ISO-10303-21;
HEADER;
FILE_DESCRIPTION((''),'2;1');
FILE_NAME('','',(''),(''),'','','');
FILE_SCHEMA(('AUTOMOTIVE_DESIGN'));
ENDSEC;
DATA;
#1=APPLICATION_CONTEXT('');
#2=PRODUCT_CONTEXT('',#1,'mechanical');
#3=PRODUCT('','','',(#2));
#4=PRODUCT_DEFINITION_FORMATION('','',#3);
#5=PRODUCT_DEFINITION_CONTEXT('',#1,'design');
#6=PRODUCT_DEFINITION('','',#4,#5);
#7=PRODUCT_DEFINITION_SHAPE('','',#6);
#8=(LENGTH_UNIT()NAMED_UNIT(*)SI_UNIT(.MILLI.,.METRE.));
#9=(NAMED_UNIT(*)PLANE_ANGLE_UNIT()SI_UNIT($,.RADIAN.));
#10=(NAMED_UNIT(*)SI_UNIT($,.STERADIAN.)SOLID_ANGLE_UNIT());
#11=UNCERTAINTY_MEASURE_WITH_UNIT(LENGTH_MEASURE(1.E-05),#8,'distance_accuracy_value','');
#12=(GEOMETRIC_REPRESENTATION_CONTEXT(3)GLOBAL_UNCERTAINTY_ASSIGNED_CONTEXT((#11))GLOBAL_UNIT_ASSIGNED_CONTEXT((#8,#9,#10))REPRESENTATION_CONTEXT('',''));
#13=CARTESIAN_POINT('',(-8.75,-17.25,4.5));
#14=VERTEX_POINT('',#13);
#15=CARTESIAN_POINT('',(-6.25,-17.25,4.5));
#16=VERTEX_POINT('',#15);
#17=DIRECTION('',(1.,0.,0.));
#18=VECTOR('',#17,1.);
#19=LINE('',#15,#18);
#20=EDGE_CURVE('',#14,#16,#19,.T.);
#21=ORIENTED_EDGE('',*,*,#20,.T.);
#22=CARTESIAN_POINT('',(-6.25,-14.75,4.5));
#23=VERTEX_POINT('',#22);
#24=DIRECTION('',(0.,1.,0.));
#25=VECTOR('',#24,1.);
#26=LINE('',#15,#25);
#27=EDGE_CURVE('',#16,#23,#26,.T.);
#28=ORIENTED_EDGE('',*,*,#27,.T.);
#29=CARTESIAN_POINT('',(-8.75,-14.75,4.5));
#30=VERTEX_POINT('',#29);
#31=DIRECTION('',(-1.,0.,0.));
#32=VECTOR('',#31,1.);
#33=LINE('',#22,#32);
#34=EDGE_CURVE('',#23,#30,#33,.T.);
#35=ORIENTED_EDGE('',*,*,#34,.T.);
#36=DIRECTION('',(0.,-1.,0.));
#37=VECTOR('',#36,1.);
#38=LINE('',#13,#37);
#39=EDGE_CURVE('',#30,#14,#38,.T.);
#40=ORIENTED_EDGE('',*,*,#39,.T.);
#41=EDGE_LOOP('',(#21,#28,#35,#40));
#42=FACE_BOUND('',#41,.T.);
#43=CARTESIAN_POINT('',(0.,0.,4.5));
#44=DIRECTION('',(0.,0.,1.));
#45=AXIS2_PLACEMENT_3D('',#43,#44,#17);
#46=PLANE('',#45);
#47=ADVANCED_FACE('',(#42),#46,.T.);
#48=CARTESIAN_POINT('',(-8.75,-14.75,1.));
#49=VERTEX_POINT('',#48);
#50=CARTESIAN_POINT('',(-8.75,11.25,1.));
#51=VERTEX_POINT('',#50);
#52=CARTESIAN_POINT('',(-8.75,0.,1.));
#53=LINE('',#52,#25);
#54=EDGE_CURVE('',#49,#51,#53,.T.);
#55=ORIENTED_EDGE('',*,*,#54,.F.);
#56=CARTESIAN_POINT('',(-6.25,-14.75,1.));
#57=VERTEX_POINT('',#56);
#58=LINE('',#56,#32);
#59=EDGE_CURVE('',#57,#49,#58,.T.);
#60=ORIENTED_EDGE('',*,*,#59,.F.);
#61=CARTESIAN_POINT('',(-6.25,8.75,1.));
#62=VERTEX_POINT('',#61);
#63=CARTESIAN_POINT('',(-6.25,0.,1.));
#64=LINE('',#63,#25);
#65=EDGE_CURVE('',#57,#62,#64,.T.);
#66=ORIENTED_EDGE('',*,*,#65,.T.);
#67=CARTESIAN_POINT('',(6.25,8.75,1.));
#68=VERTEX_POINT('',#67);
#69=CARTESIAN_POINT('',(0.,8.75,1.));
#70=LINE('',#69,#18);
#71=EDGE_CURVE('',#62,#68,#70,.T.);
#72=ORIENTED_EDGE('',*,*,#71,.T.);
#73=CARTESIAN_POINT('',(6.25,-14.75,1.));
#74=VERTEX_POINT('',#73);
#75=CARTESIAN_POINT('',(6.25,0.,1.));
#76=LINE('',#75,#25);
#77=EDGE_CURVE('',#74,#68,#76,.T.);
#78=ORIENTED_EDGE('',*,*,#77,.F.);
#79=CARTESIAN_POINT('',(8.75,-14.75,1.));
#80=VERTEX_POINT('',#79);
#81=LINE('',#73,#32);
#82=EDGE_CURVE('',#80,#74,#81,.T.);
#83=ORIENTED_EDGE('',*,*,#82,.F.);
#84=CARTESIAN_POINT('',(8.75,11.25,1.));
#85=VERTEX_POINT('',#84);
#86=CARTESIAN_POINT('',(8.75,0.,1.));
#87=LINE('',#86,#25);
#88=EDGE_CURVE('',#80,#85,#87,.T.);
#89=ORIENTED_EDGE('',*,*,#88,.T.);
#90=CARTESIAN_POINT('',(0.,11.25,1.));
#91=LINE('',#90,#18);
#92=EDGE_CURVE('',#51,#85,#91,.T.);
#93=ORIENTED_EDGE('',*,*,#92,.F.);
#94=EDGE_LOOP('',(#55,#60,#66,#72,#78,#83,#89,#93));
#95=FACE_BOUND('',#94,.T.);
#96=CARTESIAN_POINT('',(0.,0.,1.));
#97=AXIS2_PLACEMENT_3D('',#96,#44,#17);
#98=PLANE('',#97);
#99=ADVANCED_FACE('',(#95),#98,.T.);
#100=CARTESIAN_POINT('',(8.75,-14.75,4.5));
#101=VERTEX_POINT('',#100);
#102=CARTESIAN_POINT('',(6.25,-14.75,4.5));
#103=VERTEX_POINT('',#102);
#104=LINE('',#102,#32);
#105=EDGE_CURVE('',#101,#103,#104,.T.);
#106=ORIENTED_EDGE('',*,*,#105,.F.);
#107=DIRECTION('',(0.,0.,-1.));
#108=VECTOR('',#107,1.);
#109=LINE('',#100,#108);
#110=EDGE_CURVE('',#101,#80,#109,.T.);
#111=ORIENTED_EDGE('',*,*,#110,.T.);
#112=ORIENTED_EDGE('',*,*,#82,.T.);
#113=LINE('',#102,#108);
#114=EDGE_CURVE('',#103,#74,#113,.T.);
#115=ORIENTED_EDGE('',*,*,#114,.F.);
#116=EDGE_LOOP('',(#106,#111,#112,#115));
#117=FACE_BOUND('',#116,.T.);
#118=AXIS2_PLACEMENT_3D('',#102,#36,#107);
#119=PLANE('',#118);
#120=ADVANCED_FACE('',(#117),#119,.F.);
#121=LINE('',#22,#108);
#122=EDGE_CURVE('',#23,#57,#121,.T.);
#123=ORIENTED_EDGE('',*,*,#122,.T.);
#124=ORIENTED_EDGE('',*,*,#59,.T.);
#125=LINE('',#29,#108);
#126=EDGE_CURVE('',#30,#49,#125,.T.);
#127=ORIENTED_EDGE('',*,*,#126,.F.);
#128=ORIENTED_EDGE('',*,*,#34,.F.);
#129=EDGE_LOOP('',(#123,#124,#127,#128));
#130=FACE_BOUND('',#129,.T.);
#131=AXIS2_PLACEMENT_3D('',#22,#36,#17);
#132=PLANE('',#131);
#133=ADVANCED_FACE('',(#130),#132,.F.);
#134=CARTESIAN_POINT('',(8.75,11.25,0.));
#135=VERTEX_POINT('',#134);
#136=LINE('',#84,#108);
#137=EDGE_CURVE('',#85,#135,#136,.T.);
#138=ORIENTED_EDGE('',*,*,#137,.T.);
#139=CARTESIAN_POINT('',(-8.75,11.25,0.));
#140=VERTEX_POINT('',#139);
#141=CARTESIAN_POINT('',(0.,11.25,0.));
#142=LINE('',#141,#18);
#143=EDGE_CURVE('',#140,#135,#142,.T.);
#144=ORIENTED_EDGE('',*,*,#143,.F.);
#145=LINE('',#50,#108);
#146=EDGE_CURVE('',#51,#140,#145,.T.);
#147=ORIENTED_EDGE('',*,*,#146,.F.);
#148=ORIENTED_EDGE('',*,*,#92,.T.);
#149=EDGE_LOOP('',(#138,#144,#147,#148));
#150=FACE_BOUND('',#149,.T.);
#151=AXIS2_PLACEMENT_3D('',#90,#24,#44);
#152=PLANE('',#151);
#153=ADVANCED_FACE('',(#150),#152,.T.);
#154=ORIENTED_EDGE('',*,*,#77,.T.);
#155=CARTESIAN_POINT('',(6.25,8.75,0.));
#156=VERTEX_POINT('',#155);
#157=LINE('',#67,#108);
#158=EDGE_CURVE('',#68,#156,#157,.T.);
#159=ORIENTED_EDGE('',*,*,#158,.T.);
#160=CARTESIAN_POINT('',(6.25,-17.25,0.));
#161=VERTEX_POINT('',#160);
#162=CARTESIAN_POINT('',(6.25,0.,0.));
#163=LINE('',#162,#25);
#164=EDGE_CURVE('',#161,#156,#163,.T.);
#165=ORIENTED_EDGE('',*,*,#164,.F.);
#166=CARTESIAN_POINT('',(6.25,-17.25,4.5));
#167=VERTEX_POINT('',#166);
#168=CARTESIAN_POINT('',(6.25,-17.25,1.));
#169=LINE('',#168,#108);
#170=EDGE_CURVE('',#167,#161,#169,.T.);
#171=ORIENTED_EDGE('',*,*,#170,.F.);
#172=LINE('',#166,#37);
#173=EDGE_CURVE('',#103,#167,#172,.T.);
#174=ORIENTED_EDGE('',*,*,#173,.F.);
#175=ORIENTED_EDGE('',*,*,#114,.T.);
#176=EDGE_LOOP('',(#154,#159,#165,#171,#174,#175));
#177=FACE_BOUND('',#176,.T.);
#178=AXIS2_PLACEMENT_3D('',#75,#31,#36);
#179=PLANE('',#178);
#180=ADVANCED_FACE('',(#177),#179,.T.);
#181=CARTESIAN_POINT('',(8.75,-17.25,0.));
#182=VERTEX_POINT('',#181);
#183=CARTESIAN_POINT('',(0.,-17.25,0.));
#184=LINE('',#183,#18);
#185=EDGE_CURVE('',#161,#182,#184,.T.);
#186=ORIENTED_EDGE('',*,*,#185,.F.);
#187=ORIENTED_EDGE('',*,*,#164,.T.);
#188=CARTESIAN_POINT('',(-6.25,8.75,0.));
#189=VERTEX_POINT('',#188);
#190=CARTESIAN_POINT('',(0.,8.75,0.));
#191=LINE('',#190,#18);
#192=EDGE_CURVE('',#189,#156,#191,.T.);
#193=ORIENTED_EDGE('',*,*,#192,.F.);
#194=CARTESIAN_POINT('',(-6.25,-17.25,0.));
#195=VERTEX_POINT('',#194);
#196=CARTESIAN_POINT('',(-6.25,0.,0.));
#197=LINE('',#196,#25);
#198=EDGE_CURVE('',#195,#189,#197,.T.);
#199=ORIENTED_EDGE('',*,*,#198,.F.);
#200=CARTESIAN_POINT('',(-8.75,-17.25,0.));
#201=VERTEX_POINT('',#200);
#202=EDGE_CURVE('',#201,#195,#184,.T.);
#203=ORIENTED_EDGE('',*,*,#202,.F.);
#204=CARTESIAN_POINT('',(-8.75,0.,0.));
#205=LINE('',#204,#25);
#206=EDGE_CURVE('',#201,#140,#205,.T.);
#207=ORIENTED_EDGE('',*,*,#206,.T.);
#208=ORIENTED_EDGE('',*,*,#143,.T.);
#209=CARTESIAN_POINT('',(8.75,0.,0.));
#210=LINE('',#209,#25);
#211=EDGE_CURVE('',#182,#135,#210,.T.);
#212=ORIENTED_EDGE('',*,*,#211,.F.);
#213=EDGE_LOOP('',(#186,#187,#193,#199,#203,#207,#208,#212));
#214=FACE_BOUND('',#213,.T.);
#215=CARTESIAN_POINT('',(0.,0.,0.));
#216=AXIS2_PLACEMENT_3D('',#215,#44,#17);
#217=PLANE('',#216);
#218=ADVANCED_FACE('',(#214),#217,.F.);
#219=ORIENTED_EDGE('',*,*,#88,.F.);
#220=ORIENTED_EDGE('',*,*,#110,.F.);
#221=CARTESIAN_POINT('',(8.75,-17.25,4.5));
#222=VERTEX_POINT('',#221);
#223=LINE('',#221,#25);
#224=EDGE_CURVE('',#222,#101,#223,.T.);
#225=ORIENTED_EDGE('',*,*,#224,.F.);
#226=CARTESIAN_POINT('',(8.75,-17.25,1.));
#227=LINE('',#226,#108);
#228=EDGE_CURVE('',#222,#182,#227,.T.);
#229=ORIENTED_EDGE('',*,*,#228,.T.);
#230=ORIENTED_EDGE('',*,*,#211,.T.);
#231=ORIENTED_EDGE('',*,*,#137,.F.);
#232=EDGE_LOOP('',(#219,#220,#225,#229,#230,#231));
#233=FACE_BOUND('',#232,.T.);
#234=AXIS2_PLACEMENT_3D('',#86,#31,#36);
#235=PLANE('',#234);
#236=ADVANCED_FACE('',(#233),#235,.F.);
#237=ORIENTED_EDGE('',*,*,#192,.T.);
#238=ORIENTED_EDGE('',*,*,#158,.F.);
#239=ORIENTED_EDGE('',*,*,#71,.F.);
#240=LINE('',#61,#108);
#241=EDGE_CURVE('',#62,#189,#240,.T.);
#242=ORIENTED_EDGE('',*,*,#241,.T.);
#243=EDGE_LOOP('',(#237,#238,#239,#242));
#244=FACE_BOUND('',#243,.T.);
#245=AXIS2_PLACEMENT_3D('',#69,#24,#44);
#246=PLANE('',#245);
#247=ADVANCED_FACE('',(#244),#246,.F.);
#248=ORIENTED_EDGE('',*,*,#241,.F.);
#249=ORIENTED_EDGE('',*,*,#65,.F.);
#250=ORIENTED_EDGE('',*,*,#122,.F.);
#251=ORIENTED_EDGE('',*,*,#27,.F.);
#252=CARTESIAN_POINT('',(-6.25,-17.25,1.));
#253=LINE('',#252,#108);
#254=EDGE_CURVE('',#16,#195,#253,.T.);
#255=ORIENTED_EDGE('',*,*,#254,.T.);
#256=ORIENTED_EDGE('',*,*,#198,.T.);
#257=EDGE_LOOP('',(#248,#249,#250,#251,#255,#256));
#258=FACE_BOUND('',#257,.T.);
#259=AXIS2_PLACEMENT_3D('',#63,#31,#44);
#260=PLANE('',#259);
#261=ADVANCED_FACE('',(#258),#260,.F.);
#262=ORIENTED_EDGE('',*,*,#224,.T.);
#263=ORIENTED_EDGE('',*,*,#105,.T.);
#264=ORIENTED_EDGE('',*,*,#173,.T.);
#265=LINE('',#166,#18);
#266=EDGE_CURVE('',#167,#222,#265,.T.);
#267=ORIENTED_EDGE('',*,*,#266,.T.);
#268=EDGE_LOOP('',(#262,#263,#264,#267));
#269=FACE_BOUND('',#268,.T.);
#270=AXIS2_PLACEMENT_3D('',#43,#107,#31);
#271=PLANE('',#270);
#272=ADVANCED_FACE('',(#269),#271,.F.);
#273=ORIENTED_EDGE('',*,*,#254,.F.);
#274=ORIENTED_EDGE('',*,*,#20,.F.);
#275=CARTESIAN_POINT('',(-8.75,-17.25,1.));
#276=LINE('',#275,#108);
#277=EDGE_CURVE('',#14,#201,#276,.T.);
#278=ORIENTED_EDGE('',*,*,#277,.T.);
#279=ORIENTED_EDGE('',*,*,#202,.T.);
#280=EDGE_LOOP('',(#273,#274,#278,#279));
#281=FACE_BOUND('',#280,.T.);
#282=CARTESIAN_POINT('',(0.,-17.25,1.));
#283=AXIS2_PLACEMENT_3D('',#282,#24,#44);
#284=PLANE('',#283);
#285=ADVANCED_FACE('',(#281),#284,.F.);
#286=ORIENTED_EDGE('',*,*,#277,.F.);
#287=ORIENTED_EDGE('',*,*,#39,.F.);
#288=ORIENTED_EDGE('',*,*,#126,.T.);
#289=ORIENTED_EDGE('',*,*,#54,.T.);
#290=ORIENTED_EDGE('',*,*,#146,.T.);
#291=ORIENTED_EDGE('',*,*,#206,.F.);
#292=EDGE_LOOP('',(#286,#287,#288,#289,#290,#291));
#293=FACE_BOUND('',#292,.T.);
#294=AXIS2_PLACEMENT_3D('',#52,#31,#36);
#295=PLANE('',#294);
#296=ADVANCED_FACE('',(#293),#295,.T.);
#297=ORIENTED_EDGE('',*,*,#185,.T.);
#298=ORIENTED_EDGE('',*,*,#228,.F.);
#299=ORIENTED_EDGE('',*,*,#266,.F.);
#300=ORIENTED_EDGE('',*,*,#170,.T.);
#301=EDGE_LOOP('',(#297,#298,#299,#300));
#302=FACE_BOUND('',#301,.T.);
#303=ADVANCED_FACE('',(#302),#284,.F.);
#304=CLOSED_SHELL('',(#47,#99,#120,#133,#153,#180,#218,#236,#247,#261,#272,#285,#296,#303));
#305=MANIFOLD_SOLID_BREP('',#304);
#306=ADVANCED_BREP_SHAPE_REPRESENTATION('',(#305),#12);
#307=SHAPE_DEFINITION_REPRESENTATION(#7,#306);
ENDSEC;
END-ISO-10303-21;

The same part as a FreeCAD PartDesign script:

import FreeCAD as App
import Part
import Sketcher
from FreeCAD import Vector

doc = App.newDocument("Part")
params = doc.addObject("Spreadsheet::Sheet", "Params")
for row, (alias, value) in enumerate([
    ("sketch1_height", "26 mm"),
    ("sketch1_width", "2.5 mm"),
    ("sketch1_width2", "12.5 mm"),
    ("sketch1_height2", "28.5 mm"),
    ("pad1_length", "1 mm"),
    ("sketch2_width", "2.5 mm"),
    ("pad2_length", "3.5 mm"),
], start=1):
    params.set(f"A{row}", alias)
    params.set(f"B{row}", "=" + value)
    params.setAlias(f"B{row}", alias)

body = doc.addObject("PartDesign::Body", "Body")

# Sketch on XY plane
sketch1 = body.newObject("Sketcher::SketchObject", "Sketch")
sketch1.AttachmentSupport = (doc.getObject("XY_Plane"), [""])
sketch1.MapMode = "FlatFace"
sketch1.addGeometry(Part.LineSegment(Vector(-8.8, -17.2, 0), Vector(-6.2, -17.2, 0)), False)
sketch1.addGeometry(Part.LineSegment(Vector(-6.2, -17.2, 0), Vector(-6.2, 8.8, 0)), False)
sketch1.addGeometry(Part.LineSegment(Vector(-6.2, 8.8, 0), Vector(6.2, 8.8, 0)), False)
sketch1.addGeometry(Part.LineSegment(Vector(6.2, 8.8, 0), Vector(6.2, -17.2, 0)), False)
sketch1.addGeometry(Part.LineSegment(Vector(6.2, -17.2, 0), Vector(8.8, -17.2, 0)), False)
sketch1.addGeometry(Part.LineSegment(Vector(8.8, -17.2, 0), Vector(8.8, 11.2, 0)), False)
sketch1.addGeometry(Part.LineSegment(Vector(8.8, 11.2, 0), Vector(-8.8, 11.2, 0)), False)
sketch1.addGeometry(Part.LineSegment(Vector(-8.8, 11.2, 0), Vector(-8.8, -17.2, 0)), False)
sketch1.addConstraint(Sketcher.Constraint("Coincident", 0, 2, 1, 1))
sketch1.addConstraint(Sketcher.Constraint("Coincident", 1, 2, 2, 1))
sketch1.addConstraint(Sketcher.Constraint("Coincident", 2, 2, 3, 1))
sketch1.addConstraint(Sketcher.Constraint("Coincident", 3, 2, 4, 1))
sketch1.addConstraint(Sketcher.Constraint("Coincident", 4, 2, 5, 1))
sketch1.addConstraint(Sketcher.Constraint("Coincident", 5, 2, 6, 1))
sketch1.addConstraint(Sketcher.Constraint("Coincident", 6, 2, 7, 1))
sketch1.addConstraint(Sketcher.Constraint("Coincident", 7, 2, 0, 1))
sketch1.addConstraint(Sketcher.Constraint("Horizontal", 0))
sketch1.addConstraint(Sketcher.Constraint("Vertical", 1))
sketch1.addConstraint(Sketcher.Constraint("Horizontal", 2))
sketch1.addConstraint(Sketcher.Constraint("Vertical", 3))
sketch1.addConstraint(Sketcher.Constraint("Horizontal", 4))
sketch1.addConstraint(Sketcher.Constraint("Vertical", 5))
sketch1.addConstraint(Sketcher.Constraint("Horizontal", 6))
sketch1.addConstraint(Sketcher.Constraint("Vertical", 7))
sketch1.addConstraint(Sketcher.Constraint("Symmetric", 0, 2, 3, 2, -2))
sketch1.addConstraint(Sketcher.Constraint("Equal", 0, 4))
sketch1.addConstraint(Sketcher.Constraint("DistanceY", 1, 1, 1, 2, 26.0))
sketch1.addConstraint(Sketcher.Constraint("DistanceX", 0, 1, 0, 2, 2.5))
sketch1.addConstraint(Sketcher.Constraint("DistanceX", 2, 1, 2, 2, 12.5))
sketch1.addConstraint(Sketcher.Constraint("DistanceY", 5, 1, 5, 2, 28.5))
sketch1.addConstraint(Sketcher.Constraint("DistanceY", 0, 2, -1, 1, 17.25))
sketch1.setExpression("Constraints[18]", "Params.sketch1_height")
sketch1.setExpression("Constraints[19]", "Params.sketch1_width")
sketch1.setExpression("Constraints[20]", "Params.sketch1_width2")
sketch1.setExpression("Constraints[21]", "Params.sketch1_height2")
pad1 = body.newObject("PartDesign::Pad", "Pad")
pad1.Profile = sketch1
pad1.setExpression("Length", "Params.pad1_length")

# Sketch on XY plane
sketch2 = body.newObject("Sketcher::SketchObject", "Sketch001")
sketch2.AttachmentSupport = (doc.getObject("XY_Plane"), [""])
sketch2.MapMode = "FlatFace"
sketch2.AttachmentOffset = App.Placement(Vector(0, 0, 1), App.Rotation())
sketch2.addGeometry(Part.LineSegment(Vector(-8.8, -14.8, 0), Vector(-8.8, -17.2, 0)), False)
sketch2.addGeometry(Part.LineSegment(Vector(-8.8, -17.2, 0), Vector(-6.2, -17.2, 0)), False)
sketch2.addGeometry(Part.LineSegment(Vector(-6.2, -17.2, 0), Vector(-6.2, -14.8, 0)), False)
sketch2.addGeometry(Part.LineSegment(Vector(-6.2, -14.8, 0), Vector(-8.8, -14.8, 0)), False)
sketch2.addGeometry(Part.LineSegment(Vector(6.2, -14.8, 0), Vector(6.2, -17.2, 0)), False)
sketch2.addGeometry(Part.LineSegment(Vector(6.2, -17.2, 0), Vector(8.8, -17.2, 0)), False)
sketch2.addGeometry(Part.LineSegment(Vector(8.8, -17.2, 0), Vector(8.8, -14.8, 0)), False)
sketch2.addGeometry(Part.LineSegment(Vector(8.8, -14.8, 0), Vector(6.2, -14.8, 0)), False)
sketch2.addConstraint(Sketcher.Constraint("Coincident", 0, 2, 1, 1))
sketch2.addConstraint(Sketcher.Constraint("Coincident", 1, 2, 2, 1))
sketch2.addConstraint(Sketcher.Constraint("Coincident", 2, 2, 3, 1))
sketch2.addConstraint(Sketcher.Constraint("Coincident", 3, 2, 0, 1))
sketch2.addConstraint(Sketcher.Constraint("Coincident", 4, 2, 5, 1))
sketch2.addConstraint(Sketcher.Constraint("Coincident", 5, 2, 6, 1))
sketch2.addConstraint(Sketcher.Constraint("Coincident", 6, 2, 7, 1))
sketch2.addConstraint(Sketcher.Constraint("Coincident", 7, 2, 4, 1))
sketch2.addConstraint(Sketcher.Constraint("Vertical", 0))
sketch2.addConstraint(Sketcher.Constraint("Horizontal", 1))
sketch2.addConstraint(Sketcher.Constraint("Vertical", 2))
sketch2.addConstraint(Sketcher.Constraint("Horizontal", 3))
sketch2.addConstraint(Sketcher.Constraint("Vertical", 4))
sketch2.addConstraint(Sketcher.Constraint("Horizontal", 5))
sketch2.addConstraint(Sketcher.Constraint("Vertical", 6))
sketch2.addConstraint(Sketcher.Constraint("Horizontal", 7))
sketch2.addConstraint(Sketcher.Constraint("Symmetric", 1, 2, 4, 2, -2))
sketch2.addConstraint(Sketcher.Constraint("Symmetric", 3, 2, 6, 2, -2))
sketch2.addConstraint(Sketcher.Constraint("Equal", 7, 0))
sketch2.addConstraint(Sketcher.Constraint("DistanceX", 1, 1, 1, 2, 2.5))
sketch2.addConstraint(Sketcher.Constraint("DistanceX", 0, 2, 4, 2, 15.0))
sketch2.addConstraint(Sketcher.Constraint("DistanceY", 0, 2, -1, 1, 17.25))
sketch2.setExpression("Constraints[19]", "Params.sketch2_width")
pad2 = body.newObject("PartDesign::Pad", "Pad001")
pad2.Profile = sketch2
pad2.setExpression("Length", "Params.pad2_length")

doc.recompute()
